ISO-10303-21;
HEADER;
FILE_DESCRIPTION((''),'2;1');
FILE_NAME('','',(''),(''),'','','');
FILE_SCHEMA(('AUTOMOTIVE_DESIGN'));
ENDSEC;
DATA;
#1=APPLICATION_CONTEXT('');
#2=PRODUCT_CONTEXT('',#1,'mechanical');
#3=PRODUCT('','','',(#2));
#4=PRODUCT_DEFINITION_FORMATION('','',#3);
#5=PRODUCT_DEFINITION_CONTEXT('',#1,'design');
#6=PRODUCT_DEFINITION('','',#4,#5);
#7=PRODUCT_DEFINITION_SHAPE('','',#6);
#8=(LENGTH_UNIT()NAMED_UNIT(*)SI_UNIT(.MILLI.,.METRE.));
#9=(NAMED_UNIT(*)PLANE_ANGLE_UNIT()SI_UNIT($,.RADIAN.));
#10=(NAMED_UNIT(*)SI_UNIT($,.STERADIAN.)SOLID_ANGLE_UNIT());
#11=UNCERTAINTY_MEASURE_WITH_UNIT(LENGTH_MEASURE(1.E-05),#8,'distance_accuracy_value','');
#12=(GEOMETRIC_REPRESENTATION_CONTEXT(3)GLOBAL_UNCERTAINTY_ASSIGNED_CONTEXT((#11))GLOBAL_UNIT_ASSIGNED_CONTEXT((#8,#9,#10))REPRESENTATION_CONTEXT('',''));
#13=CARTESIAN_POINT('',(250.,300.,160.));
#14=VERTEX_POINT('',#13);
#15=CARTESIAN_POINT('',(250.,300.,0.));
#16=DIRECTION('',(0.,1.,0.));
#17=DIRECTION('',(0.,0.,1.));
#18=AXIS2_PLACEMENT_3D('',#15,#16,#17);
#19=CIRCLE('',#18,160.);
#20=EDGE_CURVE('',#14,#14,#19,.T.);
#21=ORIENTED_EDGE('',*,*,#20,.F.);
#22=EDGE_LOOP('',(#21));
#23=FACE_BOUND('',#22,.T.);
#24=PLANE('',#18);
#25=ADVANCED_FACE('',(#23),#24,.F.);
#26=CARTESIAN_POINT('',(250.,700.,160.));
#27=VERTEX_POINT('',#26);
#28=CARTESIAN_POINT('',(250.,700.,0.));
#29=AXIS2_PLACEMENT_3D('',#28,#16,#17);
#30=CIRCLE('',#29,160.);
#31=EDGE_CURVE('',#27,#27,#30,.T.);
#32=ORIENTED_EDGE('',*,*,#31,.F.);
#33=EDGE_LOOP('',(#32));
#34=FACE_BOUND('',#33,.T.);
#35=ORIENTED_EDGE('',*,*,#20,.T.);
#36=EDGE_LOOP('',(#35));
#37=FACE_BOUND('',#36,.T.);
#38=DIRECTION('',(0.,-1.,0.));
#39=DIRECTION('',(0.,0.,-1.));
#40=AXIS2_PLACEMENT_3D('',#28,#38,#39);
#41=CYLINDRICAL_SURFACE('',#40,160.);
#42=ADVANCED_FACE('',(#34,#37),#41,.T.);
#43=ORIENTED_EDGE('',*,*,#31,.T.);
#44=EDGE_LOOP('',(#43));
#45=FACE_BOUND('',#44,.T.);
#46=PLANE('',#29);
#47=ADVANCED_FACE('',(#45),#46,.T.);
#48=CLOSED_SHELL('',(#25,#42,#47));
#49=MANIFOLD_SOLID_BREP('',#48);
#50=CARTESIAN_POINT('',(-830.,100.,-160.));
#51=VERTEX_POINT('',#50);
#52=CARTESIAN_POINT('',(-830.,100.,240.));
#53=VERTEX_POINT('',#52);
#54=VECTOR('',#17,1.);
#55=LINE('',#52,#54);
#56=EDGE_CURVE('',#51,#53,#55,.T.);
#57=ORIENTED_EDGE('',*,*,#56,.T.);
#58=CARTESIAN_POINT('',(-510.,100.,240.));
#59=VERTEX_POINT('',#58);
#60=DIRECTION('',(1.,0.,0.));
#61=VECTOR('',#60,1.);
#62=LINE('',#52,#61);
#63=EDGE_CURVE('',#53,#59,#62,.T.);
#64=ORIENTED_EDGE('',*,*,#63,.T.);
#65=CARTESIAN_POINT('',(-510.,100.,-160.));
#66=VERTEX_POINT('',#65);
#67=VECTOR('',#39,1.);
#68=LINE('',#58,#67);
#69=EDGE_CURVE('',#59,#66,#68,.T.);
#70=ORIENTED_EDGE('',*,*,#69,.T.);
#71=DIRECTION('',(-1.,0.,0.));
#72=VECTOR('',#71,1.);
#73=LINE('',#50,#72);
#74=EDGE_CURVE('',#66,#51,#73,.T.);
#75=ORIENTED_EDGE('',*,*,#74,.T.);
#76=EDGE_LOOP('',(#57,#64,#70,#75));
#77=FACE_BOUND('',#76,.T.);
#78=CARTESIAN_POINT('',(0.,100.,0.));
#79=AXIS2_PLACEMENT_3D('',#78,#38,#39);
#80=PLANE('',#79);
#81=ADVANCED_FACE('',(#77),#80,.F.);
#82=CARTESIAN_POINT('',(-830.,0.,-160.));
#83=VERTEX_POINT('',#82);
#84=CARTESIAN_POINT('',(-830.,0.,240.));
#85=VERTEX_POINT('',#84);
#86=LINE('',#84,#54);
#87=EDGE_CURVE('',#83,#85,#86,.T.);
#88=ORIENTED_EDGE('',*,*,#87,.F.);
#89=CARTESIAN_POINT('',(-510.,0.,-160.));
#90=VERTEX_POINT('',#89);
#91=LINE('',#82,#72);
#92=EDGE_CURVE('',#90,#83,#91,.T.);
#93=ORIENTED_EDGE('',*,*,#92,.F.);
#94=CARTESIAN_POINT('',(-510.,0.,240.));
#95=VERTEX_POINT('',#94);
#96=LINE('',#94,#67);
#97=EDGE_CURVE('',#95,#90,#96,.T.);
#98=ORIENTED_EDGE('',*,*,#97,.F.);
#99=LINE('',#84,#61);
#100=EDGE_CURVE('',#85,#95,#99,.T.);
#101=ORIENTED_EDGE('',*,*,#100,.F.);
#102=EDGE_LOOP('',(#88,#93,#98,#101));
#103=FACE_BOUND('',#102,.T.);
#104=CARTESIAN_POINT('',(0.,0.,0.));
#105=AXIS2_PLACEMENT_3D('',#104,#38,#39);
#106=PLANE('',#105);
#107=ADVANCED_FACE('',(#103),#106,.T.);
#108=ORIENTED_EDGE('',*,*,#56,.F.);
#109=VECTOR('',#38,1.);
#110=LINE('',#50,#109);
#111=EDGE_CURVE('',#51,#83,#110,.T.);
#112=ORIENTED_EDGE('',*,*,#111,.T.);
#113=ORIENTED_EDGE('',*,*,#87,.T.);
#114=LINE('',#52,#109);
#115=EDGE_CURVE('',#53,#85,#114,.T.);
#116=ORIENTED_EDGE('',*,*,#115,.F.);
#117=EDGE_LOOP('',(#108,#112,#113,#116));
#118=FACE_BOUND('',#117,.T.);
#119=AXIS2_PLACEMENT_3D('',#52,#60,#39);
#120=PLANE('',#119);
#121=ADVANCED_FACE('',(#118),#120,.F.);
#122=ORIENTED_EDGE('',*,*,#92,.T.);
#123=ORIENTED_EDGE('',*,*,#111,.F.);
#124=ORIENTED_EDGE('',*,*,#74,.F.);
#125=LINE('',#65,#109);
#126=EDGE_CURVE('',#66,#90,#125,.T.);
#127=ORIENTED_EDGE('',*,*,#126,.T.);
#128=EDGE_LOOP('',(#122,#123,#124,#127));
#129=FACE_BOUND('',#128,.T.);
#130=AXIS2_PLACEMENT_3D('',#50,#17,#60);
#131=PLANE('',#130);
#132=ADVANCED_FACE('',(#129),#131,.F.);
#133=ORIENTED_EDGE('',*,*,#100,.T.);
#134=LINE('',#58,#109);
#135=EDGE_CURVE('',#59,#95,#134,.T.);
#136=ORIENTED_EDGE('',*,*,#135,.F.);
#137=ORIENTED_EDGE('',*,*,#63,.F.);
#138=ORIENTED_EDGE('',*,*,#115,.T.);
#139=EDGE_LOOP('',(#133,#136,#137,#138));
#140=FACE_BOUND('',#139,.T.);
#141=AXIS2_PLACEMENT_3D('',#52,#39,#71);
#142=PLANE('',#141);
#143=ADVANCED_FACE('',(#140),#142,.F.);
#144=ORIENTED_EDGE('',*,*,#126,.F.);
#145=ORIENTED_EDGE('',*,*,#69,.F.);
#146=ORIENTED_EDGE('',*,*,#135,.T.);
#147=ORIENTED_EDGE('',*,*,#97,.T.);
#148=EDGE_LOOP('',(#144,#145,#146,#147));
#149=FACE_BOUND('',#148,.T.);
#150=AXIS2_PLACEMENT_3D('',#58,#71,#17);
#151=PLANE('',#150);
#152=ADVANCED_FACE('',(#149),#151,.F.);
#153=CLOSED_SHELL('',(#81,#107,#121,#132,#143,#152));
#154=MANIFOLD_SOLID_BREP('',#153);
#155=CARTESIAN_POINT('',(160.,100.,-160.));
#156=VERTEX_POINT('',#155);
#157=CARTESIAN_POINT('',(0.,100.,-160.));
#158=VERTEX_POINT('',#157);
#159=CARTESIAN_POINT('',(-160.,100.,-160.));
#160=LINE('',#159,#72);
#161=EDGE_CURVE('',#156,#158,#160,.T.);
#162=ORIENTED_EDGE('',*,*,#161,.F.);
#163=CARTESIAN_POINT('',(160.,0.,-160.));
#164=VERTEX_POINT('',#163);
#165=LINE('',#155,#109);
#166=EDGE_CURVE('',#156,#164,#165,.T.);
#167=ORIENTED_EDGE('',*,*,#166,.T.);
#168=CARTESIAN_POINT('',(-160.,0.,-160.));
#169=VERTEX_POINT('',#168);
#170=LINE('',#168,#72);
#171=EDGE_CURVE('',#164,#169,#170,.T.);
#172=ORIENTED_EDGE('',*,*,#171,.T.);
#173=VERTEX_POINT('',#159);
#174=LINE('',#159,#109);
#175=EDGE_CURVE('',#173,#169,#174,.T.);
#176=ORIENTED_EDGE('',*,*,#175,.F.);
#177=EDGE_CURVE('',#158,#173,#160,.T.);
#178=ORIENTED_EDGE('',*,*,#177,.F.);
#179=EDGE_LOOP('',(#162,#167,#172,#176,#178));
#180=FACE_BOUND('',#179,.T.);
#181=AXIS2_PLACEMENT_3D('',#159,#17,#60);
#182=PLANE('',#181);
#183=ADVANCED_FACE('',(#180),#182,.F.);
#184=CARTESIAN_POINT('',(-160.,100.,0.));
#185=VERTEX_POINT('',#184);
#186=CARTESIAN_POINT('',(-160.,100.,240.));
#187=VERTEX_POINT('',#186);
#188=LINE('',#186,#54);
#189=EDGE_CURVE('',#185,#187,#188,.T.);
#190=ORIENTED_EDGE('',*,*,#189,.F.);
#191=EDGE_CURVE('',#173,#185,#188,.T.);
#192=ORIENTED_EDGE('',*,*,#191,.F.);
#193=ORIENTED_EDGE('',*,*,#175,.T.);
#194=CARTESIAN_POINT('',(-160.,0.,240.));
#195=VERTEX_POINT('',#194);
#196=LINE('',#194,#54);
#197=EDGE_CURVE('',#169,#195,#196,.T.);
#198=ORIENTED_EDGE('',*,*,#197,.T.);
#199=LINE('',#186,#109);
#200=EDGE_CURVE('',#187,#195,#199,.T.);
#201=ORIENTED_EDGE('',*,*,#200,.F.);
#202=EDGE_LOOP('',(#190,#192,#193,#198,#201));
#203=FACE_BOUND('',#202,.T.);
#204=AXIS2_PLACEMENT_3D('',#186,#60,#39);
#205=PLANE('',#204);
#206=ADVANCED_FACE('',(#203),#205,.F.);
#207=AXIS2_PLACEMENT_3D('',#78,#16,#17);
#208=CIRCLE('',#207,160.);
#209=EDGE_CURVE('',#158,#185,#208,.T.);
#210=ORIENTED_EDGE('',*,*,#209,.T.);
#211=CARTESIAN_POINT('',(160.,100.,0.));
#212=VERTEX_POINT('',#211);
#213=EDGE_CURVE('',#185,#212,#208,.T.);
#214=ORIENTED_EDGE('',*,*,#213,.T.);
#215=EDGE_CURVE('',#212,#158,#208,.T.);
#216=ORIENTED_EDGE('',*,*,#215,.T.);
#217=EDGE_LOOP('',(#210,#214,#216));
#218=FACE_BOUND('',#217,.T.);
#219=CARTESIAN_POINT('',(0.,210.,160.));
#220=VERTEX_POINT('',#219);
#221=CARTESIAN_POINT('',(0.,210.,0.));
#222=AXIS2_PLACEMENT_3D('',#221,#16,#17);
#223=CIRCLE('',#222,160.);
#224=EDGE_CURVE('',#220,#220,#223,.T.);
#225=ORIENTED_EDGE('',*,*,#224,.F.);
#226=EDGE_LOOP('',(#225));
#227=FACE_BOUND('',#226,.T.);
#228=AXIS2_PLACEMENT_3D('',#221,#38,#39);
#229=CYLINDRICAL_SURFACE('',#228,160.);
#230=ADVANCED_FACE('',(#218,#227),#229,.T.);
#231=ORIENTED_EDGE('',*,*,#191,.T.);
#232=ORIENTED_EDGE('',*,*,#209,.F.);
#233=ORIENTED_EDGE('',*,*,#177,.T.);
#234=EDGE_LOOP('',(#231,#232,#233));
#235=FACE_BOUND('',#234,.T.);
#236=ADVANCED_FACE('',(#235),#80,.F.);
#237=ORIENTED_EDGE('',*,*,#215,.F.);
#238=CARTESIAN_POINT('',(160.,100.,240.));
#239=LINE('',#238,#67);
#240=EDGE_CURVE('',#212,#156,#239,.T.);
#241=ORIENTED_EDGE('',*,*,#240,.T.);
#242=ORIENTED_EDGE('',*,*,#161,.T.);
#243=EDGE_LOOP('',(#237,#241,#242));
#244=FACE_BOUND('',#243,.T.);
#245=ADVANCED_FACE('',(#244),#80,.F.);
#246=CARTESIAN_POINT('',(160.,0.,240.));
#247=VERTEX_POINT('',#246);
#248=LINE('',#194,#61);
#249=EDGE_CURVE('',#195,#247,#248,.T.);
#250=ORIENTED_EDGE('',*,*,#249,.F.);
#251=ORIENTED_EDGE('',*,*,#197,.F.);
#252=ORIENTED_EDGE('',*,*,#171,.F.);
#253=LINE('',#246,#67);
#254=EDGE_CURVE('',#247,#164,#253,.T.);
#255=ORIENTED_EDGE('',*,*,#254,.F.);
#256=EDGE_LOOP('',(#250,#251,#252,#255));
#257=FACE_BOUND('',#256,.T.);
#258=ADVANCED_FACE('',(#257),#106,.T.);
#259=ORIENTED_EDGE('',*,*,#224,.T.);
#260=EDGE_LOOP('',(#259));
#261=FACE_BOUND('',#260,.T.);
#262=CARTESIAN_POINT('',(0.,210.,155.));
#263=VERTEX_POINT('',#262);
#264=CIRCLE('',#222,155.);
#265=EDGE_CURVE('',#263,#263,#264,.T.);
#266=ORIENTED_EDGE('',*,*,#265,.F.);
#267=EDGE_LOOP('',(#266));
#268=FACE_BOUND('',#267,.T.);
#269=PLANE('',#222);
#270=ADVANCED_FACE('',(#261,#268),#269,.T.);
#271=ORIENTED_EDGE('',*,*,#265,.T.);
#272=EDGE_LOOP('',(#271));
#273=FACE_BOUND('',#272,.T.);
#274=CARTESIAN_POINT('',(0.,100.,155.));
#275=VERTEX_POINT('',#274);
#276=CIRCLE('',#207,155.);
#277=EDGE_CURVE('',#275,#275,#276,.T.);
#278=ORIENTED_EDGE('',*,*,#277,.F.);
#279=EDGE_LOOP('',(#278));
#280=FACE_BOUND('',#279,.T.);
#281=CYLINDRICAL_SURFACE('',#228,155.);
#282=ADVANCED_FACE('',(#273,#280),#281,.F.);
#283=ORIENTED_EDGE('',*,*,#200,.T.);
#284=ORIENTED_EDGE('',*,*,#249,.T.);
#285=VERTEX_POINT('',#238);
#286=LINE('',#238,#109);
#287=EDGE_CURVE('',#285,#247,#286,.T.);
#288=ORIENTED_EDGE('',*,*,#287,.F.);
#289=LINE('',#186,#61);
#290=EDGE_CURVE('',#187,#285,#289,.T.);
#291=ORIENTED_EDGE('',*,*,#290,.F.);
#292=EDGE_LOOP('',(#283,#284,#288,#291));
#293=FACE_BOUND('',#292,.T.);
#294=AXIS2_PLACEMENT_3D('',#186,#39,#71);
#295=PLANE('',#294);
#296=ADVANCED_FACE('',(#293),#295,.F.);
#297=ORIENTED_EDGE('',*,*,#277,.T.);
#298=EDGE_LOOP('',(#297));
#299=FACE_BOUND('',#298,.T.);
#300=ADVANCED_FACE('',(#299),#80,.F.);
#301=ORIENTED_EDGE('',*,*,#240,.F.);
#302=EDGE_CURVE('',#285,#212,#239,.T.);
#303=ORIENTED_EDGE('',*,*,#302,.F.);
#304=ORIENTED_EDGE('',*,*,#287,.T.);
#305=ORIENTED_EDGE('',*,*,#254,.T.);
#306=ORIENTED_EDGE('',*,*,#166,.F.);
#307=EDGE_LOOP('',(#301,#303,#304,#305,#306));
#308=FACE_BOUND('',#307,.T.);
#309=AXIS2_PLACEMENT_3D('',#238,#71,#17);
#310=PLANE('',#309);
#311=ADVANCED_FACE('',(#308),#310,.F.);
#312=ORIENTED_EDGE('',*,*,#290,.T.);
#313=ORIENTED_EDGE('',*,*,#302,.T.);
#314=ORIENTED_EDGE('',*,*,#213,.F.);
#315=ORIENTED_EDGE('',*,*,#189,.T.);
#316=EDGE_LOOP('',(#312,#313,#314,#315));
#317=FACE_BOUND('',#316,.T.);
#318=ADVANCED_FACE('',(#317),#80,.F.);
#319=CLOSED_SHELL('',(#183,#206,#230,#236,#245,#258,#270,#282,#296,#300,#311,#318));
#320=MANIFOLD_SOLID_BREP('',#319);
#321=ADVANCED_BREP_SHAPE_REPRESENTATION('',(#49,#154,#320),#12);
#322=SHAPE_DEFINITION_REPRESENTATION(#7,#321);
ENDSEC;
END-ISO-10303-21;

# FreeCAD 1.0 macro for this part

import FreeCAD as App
import Part
import Sketcher
from FreeCAD import Vector


def add_polygon(sketch, points):
    """Adds a closed chain of lines whose ends are joined by coincident constraints."""
    first, n = sketch.GeometryCount, len(points)
    for a, b in zip(points, points[1:] + points[:1]):
        sketch.addGeometry(Part.LineSegment(App.Vector(*a, 0), App.Vector(*b, 0)), False)
    for i in range(n):
        sketch.addConstraint(Sketcher.Constraint("Coincident", first + i, 2, first + (i + 1) % n, 1))

doc = App.newDocument("Part")
params = doc.addObject("Spreadsheet::Sheet", "Params")
for row, (alias, value) in enumerate([
    ("sketch1_width", "320 mm"),
    ("sketch1_height", "400 mm"),
    ("pad1_length", "100 mm"),
    ("sketch2_width", "320 mm"),
    ("sketch2_height", "400 mm"),
    ("pad2_length", "100 mm"),
    ("sketch3_diameter", "320 mm"),
    ("sketch3_diameter2", "310 mm"),
    ("pad3_length", "110 mm"),
    ("sketch4_diameter", "320 mm"),
    ("pad4_length", "400 mm"),
], start=1):
    params.set(f"A{row}", alias)
    params.set(f"B{row}", "=" + value)
    params.setAlias(f"B{row}", alias)

body = doc.addObject("PartDesign::Body", "Body")

sketch1 = body.newObject("Sketcher::SketchObject", "Sketch")
sketch1.AttachmentSupport = (doc.getObject("XZ_Plane"), [""])
sketch1.MapMode = "FlatFace"
add_polygon(sketch1, [(-830, -160), (-830, 240), (-510, 240), (-510, -160)])
sketch1.addConstraint([
    Sketcher.Constraint("Vertical", 0),
    Sketcher.Constraint("Horizontal", 1),
    Sketcher.Constraint("Vertical", 2),
    Sketcher.Constraint("Horizontal", 3),
    Sketcher.Constraint("DistanceX", 1, 1, 1, 2, 320.0),
    Sketcher.Constraint("DistanceY", 0, 1, 0, 2, 400.0),
    Sketcher.Constraint("DistanceX", 0, 2, -1, 1, 830.0),
    Sketcher.Constraint("DistanceY", -1, 1, 0, 2, 240.0),
])
sketch1.setExpression("Constraints[8]", "Params.sketch1_width")
sketch1.setExpression("Constraints[9]", "Params.sketch1_height")
pad1 = body.newObject("PartDesign::Pad", "Pad")
pad1.Profile = sketch1
pad1.setExpression("Length", "Params.pad1_length")
pad1.Reversed = True
body2 = doc.addObject("PartDesign::Body", "Body001")

sketch2 = body2.newObject("Sketcher::SketchObject", "Sketch001")
sketch2.AttachmentSupport = (doc.getObject("XZ_Plane001"), [""])
sketch2.MapMode = "FlatFace"
add_polygon(sketch2, [(-160, -160), (-160, 240), (160, 240), (160, -160)])
sketch2.addConstraint([
    Sketcher.Constraint("Vertical", 0),
    Sketcher.Constraint("Horizontal", 1),
    Sketcher.Constraint("Vertical", 2),
    Sketcher.Constraint("Horizontal", 3),
    Sketcher.Constraint("DistanceX", 1, 1, 1, 2, 320.0),
    Sketcher.Constraint("DistanceY", 0, 1, 0, 2, 400.0),
    Sketcher.Constraint("DistanceX", 0, 2, -1, 1, 160.0),
    Sketcher.Constraint("DistanceY", -1, 1, 0, 2, 240.0),
])
sketch2.setExpression("Constraints[8]", "Params.sketch2_width")
sketch2.setExpression("Constraints[9]", "Params.sketch2_height")
pad2 = body2.newObject("PartDesign::Pad", "Pad001")
pad2.Profile = sketch2
pad2.setExpression("Length", "Params.pad2_length")
pad2.Reversed = True

sketch3 = body2.newObject("Sketcher::SketchObject", "Sketch002")
sketch3.AttachmentSupport = (doc.getObject("XZ_Plane001"), [""])
sketch3.MapMode = "FlatFace"
sketch3.AttachmentOffset = App.Placement(Vector(0, 0, -100), App.Rotation())
sketch3.addGeometry([
    Part.Circle(Vector(0, 0, 0), Vector(0, 0, 1), 160),
    Part.Circle(Vector(0, 0, 0), Vector(0, 0, 1), 155),
], False)
sketch3.addConstraint([
    Sketcher.Constraint("Coincident", 0, 3, -1, 1),
    Sketcher.Constraint("Coincident", 1, 3, -1, 1),
    Sketcher.Constraint("Diameter", 0, 320.0),
    Sketcher.Constraint("Diameter", 1, 310.0),
])
sketch3.setExpression("Constraints[2]", "Params.sketch3_diameter")
sketch3.setExpression("Constraints[3]", "Params.sketch3_diameter2")
pad3 = body2.newObject("PartDesign::Pad", "Pad002")
pad3.Profile = sketch3
pad3.setExpression("Length", "Params.pad3_length")
pad3.Reversed = True
body3 = doc.addObject("PartDesign::Body", "Body002")

sketch4 = body3.newObject("Sketcher::SketchObject", "Sketch003")
sketch4.AttachmentSupport = (doc.getObject("XZ_Plane002"), [""])
sketch4.MapMode = "FlatFace"
sketch4.AttachmentOffset = App.Placement(Vector(0, 0, -300), App.Rotation())
sketch4.addGeometry(Part.Circle(Vector(250, 0, 0), Vector(0, 0, 1), 160), False)
sketch4.addConstraint([
    Sketcher.Constraint("PointOnObject", 0, 3, -1),
    Sketcher.Constraint("Diameter", 0, 320.0),
    Sketcher.Constraint("DistanceX", -1, 1, 0, 3, 250.0),
])
sketch4.setExpression("Constraints[1]", "Params.sketch4_diameter")
pad4 = body3.newObject("PartDesign::Pad", "Pad003")
pad4.Profile = sketch4
pad4.setExpression("Length", "Params.pad4_length")
pad4.Reversed = True

doc.recompute()
